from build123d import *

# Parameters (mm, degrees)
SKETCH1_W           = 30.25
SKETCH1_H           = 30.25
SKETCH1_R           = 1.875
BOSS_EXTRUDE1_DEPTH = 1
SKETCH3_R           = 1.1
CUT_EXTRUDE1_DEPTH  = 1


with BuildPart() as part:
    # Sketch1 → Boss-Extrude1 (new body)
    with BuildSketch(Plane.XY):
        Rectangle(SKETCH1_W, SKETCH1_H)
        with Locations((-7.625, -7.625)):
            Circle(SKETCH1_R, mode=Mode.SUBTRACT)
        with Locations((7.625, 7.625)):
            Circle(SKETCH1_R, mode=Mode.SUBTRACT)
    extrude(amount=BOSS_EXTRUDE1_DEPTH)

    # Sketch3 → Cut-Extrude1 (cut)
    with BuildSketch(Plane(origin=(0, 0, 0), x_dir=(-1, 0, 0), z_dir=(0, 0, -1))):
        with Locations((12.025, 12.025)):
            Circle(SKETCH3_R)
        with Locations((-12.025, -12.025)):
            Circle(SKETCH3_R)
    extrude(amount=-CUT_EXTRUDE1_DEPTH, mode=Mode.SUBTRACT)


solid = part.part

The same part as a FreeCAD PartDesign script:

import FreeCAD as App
import Part
import Sketcher
Q = App.Units.Quantity


def add_polygon(sketch, points):
    """Adds a closed chain of lines whose ends are joined by coincident constraints."""
    first, n = sketch.GeometryCount, len(points)
    for a, b in zip(points, points[1:] + points[:1]):
        sketch.addGeometry(Part.LineSegment(App.Vector(*a, 0), App.Vector(*b, 0)), False)
    for i in range(n):
        sketch.addConstraint(Sketcher.Constraint("Coincident", first + i, 2, first + (i + 1) % n, 1))

doc = App.newDocument("Part")
body = doc.addObject("PartDesign::Body", "Body")

sketch1 = body.newObject("Sketcher::SketchObject", "Sketch")
sketch1.AttachmentSupport = (doc.getObject("XY_Plane"), [""])
sketch1.MapMode = "FlatFace"
add_polygon(sketch1, [(-15.1, 15.1), (-15.1, -15.1), (15.1, -15.1), (15.1, 15.1)])
sketch1.addGeometry(Part.Circle(App.Vector(-7.6, -7.6, 0), App.Vector(0, 0, 1), 1.9), False)
sketch1.addGeometry(Part.Circle(App.Vector(7.6, 7.6, 0), App.Vector(0, 0, 1), 1.9), False)
sketch1.addConstraint([
    Sketcher.Constraint("Vertical", 0),
    Sketcher.Constraint("Horizontal", 1),
    Sketcher.Constraint("Vertical", 2),
    Sketcher.Constraint("Horizontal", 3),
    Sketcher.Constraint("Equal", 4, 5),
    Sketcher.Constraint("Symmetric", 4, 3, 5, 3, -1, 1),
    Sketcher.Constraint("Symmetric", 0, 2, 2, 2, -1, 1),
    Sketcher.Constraint("Equal", 3, 0),
    Sketcher.Constraint("Diameter", 4, Q("3.75 mm")),
    Sketcher.Constraint("DistanceX", 1, 1, 1, 2, Q("30.25 mm")),
    Sketcher.Constraint("DistanceX", 0, 2, 4, 3, Q("7.5 mm")),
    Sketcher.Constraint("DistanceY", 0, 2, 4, 3, Q("7.5 mm")),
])
pad1 = body.newObject("PartDesign::Pad", "Pad")
pad1.Profile = sketch1
pad1.Length = 1

sketch2 = body.newObject("Sketcher::SketchObject", "Sketch001")
sketch2.AttachmentSupport = (doc.getObject("XY_Plane"), [""])
sketch2.MapMode = "FlatFace"
sketch2.addGeometry([
    Part.Circle(App.Vector(-12, 12, 0), App.Vector(0, 0, 1), 1.1),
    Part.Circle(App.Vector(12, -12, 0), App.Vector(0, 0, 1), 1.1),
], False)
sketch2.addConstraint([
    Sketcher.Constraint("Equal", 0, 1),
    Sketcher.Constraint("Symmetric", 0, 3, 1, 3, -1, 1),
    Sketcher.Constraint("Diameter", 0, Q("2.2 mm")),
    Sketcher.Constraint("DistanceX", 0, 3, 1, 3, Q("24.05 mm")),
    Sketcher.Constraint("DistanceY", 1, 3, 0, 3, Q("24.05 mm")),
])
pocket1 = body.newObject("PartDesign::Pocket", "Pocket")
pocket1.Profile = sketch2
pocket1.Length = 1
pocket1.Reversed = True

doc.recompute()
